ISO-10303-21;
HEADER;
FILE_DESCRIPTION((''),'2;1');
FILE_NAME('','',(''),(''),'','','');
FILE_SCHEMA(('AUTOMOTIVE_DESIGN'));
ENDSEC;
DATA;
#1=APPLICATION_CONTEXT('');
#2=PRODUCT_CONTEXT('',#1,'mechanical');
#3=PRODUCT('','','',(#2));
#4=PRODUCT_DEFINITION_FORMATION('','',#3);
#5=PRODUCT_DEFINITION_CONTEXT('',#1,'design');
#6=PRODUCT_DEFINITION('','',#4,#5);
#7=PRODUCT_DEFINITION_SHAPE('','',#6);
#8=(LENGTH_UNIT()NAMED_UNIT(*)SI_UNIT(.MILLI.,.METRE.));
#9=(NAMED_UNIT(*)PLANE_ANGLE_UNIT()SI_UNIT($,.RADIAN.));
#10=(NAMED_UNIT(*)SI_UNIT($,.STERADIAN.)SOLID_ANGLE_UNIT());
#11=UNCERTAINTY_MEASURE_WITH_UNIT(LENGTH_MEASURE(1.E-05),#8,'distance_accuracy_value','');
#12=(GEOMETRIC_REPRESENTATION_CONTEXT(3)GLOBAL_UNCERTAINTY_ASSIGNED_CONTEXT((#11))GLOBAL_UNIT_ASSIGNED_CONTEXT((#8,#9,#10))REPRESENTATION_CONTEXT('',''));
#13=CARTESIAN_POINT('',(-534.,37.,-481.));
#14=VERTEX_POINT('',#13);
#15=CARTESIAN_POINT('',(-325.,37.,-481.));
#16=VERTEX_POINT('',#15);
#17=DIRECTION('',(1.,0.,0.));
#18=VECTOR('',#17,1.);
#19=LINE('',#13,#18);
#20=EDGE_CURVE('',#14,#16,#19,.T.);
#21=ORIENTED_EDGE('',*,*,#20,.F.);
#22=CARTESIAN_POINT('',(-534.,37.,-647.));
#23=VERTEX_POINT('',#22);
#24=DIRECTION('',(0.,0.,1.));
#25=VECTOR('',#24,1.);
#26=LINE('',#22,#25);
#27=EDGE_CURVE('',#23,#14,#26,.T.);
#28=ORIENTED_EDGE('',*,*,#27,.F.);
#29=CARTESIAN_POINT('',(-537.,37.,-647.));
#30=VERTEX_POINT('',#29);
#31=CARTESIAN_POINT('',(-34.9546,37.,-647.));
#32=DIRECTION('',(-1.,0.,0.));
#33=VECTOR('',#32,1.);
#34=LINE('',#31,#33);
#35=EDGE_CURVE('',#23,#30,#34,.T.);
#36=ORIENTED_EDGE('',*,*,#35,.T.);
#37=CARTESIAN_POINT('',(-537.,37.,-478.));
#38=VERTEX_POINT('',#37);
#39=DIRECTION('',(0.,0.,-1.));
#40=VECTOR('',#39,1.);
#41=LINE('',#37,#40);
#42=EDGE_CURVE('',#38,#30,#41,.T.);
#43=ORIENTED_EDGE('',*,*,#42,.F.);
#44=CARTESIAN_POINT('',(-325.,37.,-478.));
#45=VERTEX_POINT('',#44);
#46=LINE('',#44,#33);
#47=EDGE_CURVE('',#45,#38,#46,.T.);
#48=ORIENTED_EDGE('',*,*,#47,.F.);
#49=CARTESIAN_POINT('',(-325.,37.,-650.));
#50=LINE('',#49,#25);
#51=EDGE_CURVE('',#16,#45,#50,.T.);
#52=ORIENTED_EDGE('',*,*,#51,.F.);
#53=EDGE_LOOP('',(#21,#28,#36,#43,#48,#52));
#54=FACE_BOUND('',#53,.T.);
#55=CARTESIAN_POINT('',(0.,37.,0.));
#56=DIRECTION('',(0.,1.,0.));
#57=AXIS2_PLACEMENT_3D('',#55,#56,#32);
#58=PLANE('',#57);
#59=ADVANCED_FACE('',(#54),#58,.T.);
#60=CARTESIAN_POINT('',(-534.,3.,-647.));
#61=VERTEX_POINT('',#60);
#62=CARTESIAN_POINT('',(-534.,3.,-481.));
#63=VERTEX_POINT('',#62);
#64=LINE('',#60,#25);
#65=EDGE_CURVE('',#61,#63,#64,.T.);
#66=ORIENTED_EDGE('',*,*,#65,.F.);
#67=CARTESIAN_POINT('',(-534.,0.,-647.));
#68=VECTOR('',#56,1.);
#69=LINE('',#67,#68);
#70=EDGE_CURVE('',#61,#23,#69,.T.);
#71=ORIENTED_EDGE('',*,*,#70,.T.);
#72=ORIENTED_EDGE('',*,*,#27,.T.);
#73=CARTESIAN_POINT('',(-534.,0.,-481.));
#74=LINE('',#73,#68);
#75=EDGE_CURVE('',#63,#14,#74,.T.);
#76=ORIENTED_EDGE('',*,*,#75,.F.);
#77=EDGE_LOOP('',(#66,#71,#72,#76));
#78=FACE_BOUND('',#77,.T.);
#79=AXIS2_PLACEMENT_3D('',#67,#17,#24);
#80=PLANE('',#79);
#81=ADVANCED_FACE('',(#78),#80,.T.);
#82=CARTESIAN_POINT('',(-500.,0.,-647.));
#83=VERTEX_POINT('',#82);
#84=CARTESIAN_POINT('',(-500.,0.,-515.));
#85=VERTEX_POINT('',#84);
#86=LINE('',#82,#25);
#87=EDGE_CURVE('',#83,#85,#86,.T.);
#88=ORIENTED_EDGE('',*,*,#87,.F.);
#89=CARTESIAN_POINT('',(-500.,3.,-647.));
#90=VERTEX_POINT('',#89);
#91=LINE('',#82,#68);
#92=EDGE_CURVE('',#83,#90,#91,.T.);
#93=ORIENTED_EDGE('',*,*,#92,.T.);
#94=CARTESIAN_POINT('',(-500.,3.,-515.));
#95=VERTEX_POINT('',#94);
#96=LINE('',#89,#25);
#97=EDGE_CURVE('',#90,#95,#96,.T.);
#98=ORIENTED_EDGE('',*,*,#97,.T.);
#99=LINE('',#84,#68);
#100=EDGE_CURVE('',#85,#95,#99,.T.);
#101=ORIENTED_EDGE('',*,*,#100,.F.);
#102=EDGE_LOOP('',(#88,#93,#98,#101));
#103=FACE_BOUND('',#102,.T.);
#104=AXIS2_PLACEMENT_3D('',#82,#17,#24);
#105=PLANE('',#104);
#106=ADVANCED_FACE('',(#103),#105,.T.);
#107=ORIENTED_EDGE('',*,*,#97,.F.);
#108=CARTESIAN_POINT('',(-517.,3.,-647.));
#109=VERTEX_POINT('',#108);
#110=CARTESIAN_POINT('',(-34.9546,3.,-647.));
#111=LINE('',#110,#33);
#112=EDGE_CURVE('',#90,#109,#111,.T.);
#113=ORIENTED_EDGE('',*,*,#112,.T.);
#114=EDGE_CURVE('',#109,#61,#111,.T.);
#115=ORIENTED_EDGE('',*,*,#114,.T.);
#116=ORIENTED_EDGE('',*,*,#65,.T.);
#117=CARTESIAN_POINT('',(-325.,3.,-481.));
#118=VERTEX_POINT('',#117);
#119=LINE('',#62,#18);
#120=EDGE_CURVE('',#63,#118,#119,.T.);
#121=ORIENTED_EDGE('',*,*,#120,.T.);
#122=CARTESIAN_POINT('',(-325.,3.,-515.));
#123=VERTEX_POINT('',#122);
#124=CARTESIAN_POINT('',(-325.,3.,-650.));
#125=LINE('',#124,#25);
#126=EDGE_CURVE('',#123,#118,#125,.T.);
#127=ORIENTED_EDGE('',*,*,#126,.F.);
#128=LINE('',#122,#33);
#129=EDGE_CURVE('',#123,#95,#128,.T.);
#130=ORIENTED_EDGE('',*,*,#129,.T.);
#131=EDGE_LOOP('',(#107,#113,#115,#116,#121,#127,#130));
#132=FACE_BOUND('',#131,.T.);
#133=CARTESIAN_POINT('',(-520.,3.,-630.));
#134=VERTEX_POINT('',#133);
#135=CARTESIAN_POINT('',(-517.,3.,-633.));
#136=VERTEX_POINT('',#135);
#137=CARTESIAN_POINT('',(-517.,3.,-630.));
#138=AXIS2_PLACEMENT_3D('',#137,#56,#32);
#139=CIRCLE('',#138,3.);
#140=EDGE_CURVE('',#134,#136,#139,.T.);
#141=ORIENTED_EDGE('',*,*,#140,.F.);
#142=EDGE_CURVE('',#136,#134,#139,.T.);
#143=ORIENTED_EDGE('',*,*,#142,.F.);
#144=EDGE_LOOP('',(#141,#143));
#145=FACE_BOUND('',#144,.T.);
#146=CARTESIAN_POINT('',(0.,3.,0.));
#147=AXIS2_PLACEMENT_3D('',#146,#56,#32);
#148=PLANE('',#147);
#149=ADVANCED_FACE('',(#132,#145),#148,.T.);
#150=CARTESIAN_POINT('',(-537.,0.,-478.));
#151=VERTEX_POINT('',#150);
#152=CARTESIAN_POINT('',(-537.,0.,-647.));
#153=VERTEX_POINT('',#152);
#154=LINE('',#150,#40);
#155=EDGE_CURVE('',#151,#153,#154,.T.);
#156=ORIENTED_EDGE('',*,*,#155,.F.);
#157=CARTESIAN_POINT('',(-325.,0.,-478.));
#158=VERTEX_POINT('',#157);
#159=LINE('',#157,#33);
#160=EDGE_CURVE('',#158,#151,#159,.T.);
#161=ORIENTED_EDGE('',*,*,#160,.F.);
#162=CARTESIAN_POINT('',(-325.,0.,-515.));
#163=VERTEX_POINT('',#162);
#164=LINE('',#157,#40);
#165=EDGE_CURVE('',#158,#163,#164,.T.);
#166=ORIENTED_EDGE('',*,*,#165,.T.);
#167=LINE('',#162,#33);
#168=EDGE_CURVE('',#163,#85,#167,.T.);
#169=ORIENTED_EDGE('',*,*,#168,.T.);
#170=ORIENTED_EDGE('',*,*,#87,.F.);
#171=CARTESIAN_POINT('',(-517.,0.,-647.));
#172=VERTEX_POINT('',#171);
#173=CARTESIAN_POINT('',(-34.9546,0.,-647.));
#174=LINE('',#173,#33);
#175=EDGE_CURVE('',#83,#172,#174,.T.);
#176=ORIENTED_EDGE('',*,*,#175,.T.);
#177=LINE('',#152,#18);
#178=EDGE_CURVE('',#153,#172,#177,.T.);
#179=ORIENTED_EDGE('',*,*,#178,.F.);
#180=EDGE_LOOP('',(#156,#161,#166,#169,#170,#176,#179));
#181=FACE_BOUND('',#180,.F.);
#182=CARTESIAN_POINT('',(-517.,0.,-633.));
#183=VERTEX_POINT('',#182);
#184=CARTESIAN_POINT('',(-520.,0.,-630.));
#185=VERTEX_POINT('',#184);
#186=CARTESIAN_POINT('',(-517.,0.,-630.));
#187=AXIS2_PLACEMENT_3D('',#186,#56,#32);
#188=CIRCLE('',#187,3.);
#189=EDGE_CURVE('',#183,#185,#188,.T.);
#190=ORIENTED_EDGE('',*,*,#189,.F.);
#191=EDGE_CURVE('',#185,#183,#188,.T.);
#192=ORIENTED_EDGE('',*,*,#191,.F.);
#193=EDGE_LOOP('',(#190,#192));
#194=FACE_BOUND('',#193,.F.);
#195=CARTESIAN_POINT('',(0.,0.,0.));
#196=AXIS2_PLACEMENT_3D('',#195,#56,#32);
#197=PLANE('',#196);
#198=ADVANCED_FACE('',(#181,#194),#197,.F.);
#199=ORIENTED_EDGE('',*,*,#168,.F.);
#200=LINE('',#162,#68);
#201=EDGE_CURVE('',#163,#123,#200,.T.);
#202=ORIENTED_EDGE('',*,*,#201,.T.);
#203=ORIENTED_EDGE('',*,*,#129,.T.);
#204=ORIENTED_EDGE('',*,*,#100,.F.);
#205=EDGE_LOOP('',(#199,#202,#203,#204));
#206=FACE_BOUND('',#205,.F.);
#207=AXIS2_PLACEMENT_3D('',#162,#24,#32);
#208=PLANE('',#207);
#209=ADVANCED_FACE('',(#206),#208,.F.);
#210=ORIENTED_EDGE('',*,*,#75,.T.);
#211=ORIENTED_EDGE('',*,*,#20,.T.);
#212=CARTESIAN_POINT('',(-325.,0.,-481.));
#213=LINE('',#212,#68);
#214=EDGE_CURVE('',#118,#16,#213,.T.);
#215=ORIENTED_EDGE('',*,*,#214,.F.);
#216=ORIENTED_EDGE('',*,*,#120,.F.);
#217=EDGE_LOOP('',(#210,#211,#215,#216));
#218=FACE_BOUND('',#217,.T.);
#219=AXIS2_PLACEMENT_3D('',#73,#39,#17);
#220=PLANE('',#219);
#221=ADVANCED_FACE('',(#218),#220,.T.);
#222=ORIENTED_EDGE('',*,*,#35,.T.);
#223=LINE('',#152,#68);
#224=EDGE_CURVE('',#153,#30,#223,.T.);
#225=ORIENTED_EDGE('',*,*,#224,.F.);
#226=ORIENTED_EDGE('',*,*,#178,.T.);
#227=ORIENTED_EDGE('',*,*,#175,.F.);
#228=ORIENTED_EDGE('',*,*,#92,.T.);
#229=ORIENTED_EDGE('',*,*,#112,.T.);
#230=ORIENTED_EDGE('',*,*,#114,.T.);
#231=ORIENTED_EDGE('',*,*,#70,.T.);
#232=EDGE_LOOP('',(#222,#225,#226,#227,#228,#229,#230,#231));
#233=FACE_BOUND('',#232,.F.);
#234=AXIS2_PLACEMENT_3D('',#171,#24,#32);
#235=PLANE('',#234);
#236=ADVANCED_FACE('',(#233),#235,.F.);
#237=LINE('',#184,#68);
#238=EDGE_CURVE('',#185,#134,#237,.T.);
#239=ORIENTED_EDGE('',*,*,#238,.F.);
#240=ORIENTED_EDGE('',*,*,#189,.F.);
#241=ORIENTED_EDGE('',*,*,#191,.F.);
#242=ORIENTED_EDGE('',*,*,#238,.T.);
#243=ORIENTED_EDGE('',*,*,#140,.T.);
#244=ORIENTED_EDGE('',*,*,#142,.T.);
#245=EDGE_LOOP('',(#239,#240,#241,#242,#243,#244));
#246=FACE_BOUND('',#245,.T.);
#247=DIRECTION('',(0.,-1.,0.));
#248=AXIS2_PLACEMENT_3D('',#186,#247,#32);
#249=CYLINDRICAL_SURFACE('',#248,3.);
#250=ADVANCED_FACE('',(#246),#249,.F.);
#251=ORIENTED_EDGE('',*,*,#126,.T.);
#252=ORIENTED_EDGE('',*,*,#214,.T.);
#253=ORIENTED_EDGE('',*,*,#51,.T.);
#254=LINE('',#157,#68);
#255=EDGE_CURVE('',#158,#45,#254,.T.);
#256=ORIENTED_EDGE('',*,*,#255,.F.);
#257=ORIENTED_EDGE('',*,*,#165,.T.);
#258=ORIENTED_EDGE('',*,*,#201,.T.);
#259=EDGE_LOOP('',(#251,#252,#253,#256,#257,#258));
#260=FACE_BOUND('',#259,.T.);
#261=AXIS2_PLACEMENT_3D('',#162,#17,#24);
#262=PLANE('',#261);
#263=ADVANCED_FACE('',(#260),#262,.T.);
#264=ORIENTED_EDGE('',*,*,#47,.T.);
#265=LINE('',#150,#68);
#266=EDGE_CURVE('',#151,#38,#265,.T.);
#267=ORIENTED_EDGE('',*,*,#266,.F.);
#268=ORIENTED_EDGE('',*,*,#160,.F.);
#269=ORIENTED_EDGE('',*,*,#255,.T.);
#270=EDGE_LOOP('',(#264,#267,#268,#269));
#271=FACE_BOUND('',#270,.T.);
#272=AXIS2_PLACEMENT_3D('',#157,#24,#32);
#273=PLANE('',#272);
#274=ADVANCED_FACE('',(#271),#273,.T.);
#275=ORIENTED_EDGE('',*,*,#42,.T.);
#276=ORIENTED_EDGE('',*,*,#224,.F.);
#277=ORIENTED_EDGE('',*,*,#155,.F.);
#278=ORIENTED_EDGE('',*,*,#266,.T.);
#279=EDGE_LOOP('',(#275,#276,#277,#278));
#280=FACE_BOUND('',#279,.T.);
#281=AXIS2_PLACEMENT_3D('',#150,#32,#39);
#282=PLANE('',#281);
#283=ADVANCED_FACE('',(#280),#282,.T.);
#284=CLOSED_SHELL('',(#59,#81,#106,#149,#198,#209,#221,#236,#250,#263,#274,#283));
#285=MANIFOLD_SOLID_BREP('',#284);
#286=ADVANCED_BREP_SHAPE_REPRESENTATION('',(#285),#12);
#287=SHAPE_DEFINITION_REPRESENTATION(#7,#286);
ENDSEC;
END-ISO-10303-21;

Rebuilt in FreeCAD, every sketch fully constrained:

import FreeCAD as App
import Part
import Sketcher
Q = App.Units.Quantity


def add_polygon(sketch, points):
    """Adds a closed chain of lines whose ends are joined by coincident constraints."""
    first, n = sketch.GeometryCount, len(points)
    for a, b in zip(points, points[1:] + points[:1]):
        sketch.addGeometry(Part.LineSegment(App.Vector(*a, 0), App.Vector(*b, 0)), False)
    for i in range(n):
        sketch.addConstraint(Sketcher.Constraint("Coincident", first + i, 2, first + (i + 1) % n, 1))

doc = App.newDocument("Part")
params = doc.addObject("Spreadsheet::Sheet", "Params")
for row, (alias, value) in enumerate([
    ("sketch1_diameter", "6 mm"),
    ("sketch1_width", "17 mm"),
    ("sketch1_width2", "209 mm"),
    ("sketch1_height", "34 mm"),
    ("sketch1_height2", "132 mm"),
    ("pad1_length", "3 mm"),
    ("sketch2_width", "3 mm"),
    ("sketch2_width2", "212 mm"),
    ("sketch2_height", "166 mm"),
    ("pad2_length", "37 mm"),
], start=1):
    params.set(f"A{row}", alias)
    params.set(f"B{row}", "=" + value)
    params.setAlias(f"B{row}", alias)

body = doc.addObject("PartDesign::Body", "Body")

# Sketch on XZ plane
sketch1 = body.newObject("Sketcher::SketchObject", "Sketch")
sketch1.AttachmentSupport = (doc.getObject("XZ_Plane"), [""])
sketch1.MapMode = "FlatFace"
add_polygon(sketch1, [(-534, -481), (-325, -481), (-325, -515), (-500, -515), (-500, -647), (-517, -647), (-534, -647)])  # lines 0-6
sketch1.addGeometry(Part.Circle(App.Vector(-517, -630, 0), App.Vector(0, 0, 1), 3), False)  # 7
sketch1.addConstraint([
    Sketcher.Constraint("Horizontal", 0),
    Sketcher.Constraint("Vertical", 1),
    Sketcher.Constraint("Horizontal", 2),
    Sketcher.Constraint("Vertical", 3),
    Sketcher.Constraint("Horizontal", 4),
    Sketcher.Constraint("Horizontal", 5),
    Sketcher.Constraint("Vertical", 6),
    Sketcher.Constraint("Vertical", 7, 3, 4, 2),
    Sketcher.Constraint("Equal", 4, 5),
    Sketcher.Constraint("Diameter", 7, Q("6 mm")),
    Sketcher.Constraint("DistanceX", 4, 2, 4, 1, Q("17 mm")),
    Sketcher.Constraint("DistanceY", 3, 2, 7, 3, Q("17 mm")),
    Sketcher.Constraint("DistanceX", 0, 1, 0, 2, Q("209 mm")),
    Sketcher.Constraint("DistanceY", 1, 2, 1, 1, Q("34 mm")),
    Sketcher.Constraint("DistanceY", 3, 2, 3, 1, Q("132 mm")),
    Sketcher.Constraint("DistanceX", 7, 3, -1, 1, Q("517 mm")),
    Sketcher.Constraint("DistanceY", 7, 3, -1, 1, Q("630 mm")),
])
sketch1.setExpression("Constraints[16]", "Params.sketch1_diameter")
sketch1.setExpression("Constraints[17]", "Params.sketch1_width")
sketch1.setExpression("Constraints[19]", "Params.sketch1_width2")
sketch1.setExpression("Constraints[20]", "Params.sketch1_height")
sketch1.setExpression("Constraints[21]", "Params.sketch1_height2")
pad1 = body.newObject("PartDesign::Pad", "Pad")
pad1.Profile = sketch1
pad1.setExpression("Length", "Params.pad1_length")
pad1.Reversed = True

# Sketch on XZ plane
sketch2 = body.newObject("Sketcher::SketchObject", "Sketch001")
sketch2.AttachmentSupport = (doc.getObject("XZ_Plane"), [""])
sketch2.MapMode = "FlatFace"
add_polygon(sketch2, [(-537, -478), (-325, -478), (-325, -481), (-534, -481), (-534, -647), (-537, -647)])  # lines 0-5
sketch2.addConstraint([
    Sketcher.Constraint("Horizontal", 0),
    Sketcher.Constraint("Vertical", 1),
    Sketcher.Constraint("Horizontal", 2),
    Sketcher.Constraint("Vertical", 3),
    Sketcher.Constraint("Horizontal", 4),
    Sketcher.Constraint("Vertical", 5),
    Sketcher.Constraint("Equal", 4, 1),
    Sketcher.Constraint("DistanceX", 4, 2, 4, 1, Q("3 mm")),
    Sketcher.Constraint("DistanceX", 0, 1, 0, 2, Q("212 mm")),
    Sketcher.Constraint("DistanceY", 3, 2, 3, 1, Q("166 mm")),
    Sketcher.Constraint("DistanceX", 0, 2, -1, 1, Q("325 mm")),
    Sketcher.Constraint("DistanceY", 0, 2, -1, 1, Q("478 mm")),
])
sketch2.setExpression("Constraints[13]", "Params.sketch2_width")
sketch2.setExpression("Constraints[14]", "Params.sketch2_width2")
sketch2.setExpression("Constraints[15]", "Params.sketch2_height")
pad2 = body.newObject("PartDesign::Pad", "Pad001")
pad2.Profile = sketch2
pad2.setExpression("Length", "Params.pad2_length")
pad2.Reversed = True

doc.recompute()
